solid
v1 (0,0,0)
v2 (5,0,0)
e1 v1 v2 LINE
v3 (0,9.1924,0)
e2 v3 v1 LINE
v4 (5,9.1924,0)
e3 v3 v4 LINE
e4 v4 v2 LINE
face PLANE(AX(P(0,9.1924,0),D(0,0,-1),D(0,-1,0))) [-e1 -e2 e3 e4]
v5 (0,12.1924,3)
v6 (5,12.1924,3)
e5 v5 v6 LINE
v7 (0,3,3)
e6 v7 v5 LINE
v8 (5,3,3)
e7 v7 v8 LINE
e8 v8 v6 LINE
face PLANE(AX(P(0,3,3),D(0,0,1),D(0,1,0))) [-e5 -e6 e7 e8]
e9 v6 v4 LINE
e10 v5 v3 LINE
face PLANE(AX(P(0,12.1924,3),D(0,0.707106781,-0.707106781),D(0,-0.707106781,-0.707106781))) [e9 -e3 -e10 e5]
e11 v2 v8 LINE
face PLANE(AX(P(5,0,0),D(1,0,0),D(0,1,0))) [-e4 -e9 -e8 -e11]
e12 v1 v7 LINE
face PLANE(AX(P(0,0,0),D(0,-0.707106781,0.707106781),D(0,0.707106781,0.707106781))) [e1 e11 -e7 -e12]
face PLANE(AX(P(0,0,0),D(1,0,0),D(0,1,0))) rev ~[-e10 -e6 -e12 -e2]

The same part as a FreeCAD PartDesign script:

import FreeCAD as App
import Part
import Sketcher

V = App.Vector
Q = App.Units.Quantity

doc = App.newDocument("Part")
body = doc.addObject("PartDesign::Body", "Body")

# Sketch on YZ plane
sketch1 = body.newObject("Sketcher::SketchObject", "Sketch")
sketch1.AttachmentSupport = (doc.getObject("YZ_Plane"), [""])
sketch1.MapMode = "FlatFace"
sketch1.addGeometry([
    Part.LineSegment(V(0, 0, 0), V(9.2, 0, 0)),
    Part.LineSegment(V(9.2, 0, 0), V(12.2, 3, 0)),
    Part.LineSegment(V(12.2, 3, 0), V(3, 3, 0)),
    Part.LineSegment(V(3, 3, 0), V(0, 0, 0)),
], False)
sketch1.addConstraint([
    Sketcher.Constraint("Coincident", 0, 2, 1, 1),
    Sketcher.Constraint("Coincident", 1, 2, 2, 1),
    Sketcher.Constraint("Coincident", 2, 2, 3, 1),
    Sketcher.Constraint("Coincident", 3, 2, 0, 1),
    Sketcher.Constraint("Horizontal", 0),
    Sketcher.Constraint("Horizontal", 2),
    Sketcher.Constraint("Coincident", 3, 2, -1, 1),
    Sketcher.Constraint("Parallel", 1, 3),
    Sketcher.Constraint("Angle", 1, Q("45 deg")),
    Sketcher.Constraint("DistanceY", -1, 1, 1, 2, Q("3 mm")),
    Sketcher.Constraint("DistanceX", 0, 1, 0, 2, Q("9.1924 mm")),
])
pad1 = body.newObject("PartDesign::Pad", "Pad")
pad1.Profile = sketch1
pad1.Length = 5

doc.recompute()
